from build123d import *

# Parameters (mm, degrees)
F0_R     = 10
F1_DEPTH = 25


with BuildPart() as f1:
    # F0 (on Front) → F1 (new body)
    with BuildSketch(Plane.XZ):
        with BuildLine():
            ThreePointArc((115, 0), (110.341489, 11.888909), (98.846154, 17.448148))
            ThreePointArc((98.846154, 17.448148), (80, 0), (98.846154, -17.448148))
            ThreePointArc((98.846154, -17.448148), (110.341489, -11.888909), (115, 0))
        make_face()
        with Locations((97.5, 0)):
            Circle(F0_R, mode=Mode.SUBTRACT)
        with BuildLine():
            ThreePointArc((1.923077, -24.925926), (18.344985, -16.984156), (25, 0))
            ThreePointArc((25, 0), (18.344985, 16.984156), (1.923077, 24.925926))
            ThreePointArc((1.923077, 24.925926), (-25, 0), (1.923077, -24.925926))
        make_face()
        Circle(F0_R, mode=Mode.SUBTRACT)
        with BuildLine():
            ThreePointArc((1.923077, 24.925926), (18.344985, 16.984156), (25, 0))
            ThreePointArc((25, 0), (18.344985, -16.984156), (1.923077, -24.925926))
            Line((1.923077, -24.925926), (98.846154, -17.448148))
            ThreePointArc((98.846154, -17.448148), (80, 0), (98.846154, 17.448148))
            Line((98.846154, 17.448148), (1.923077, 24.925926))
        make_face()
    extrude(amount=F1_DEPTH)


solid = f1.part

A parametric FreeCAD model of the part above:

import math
import FreeCAD as App
import Part
import Sketcher

doc = App.newDocument("Part")
body = doc.addObject("PartDesign::Body", "Body")

# Sketch on XZ plane
sketch1 = body.newObject("Sketcher::SketchObject", "Sketch")
sketch1.AttachmentSupport = (doc.getObject("XZ_Plane"), [""])
sketch1.MapMode = "FlatFace"
sketch1.addGeometry([
    Part.ArcOfCircle(Part.Circle(App.Vector(97, 0, 0), App.Vector(0, 0, 1), 18), math.radians(0), math.radians(86)),  # 0
    Part.LineSegment(App.Vector(99, 17, 0), App.Vector(2, 25, 0)),  # 1
    Part.ArcOfCircle(Part.Circle(App.Vector(0, 0, 0), App.Vector(0, 0, 1), 25), math.radians(86), math.radians(274)),  # 2
    Part.LineSegment(App.Vector(2, -25, 0), App.Vector(99, -17, 0)),  # 3
    Part.ArcOfCircle(Part.Circle(App.Vector(97, 0, 0), App.Vector(0, 0, 1), 18), math.radians(-86), math.radians(0)),  # 4
    Part.Circle(App.Vector(98, 0, 0), App.Vector(0, 0, 1), 10),  # 5
    Part.Circle(App.Vector(0, 0, 0), App.Vector(0, 0, 1), 10),  # 6
], False)
sketch1.addConstraint([
    Sketcher.Constraint("Tangent", 0, 2, 1, 1),
    Sketcher.Constraint("Tangent", 1, 2, 2, 1),
    Sketcher.Constraint("Tangent", 2, 2, 3, 1),
    Sketcher.Constraint("Tangent", 3, 2, 4, 1),
    Sketcher.Constraint("Tangent", 4, 2, 0, 1),
    Sketcher.Constraint("Coincident", 2, 3, -1, 1),
    Sketcher.Constraint("Coincident", 6, 3, -1, 1),
    Sketcher.Constraint("Coincident", 5, 3, 0, 3),
    Sketcher.Constraint("Equal", 0, 4),
    Sketcher.Constraint("Equal", 5, 6),
    Sketcher.Constraint("PointOnObject", 0, 3, -1),
    Sketcher.Constraint("PointOnObject", 4, 2, -1),
    Sketcher.Constraint("Diameter", 5, 20.0),
    Sketcher.Constraint("Radius", 2, 25.0),
    Sketcher.Constraint("Radius", 0, 17.5),
    Sketcher.Constraint("DistanceX", -1, 1, 4, 2, 115.0),
])
pad1 = body.newObject("PartDesign::Pad", "Pad")
pad1.Profile = sketch1
pad1.Length = 25

doc.recompute()
